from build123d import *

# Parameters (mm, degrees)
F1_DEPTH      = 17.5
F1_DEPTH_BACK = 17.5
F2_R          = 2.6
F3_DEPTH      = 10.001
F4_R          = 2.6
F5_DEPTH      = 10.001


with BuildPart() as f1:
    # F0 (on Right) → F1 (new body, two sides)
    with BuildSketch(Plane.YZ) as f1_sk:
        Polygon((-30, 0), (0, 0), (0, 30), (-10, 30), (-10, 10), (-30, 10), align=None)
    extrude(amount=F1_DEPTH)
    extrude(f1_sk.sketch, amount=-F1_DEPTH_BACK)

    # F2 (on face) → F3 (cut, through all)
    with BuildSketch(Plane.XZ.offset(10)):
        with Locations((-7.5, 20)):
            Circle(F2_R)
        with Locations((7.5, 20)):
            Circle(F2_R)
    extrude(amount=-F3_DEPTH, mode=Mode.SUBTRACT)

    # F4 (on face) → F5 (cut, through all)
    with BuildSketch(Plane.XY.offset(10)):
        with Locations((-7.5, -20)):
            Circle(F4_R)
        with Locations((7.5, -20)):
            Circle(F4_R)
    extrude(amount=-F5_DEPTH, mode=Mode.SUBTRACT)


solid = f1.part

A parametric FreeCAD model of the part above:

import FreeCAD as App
import Part
import Sketcher

V = App.Vector
Q = App.Units.Quantity

doc = App.newDocument("Part")
body = doc.addObject("PartDesign::Body", "Body")

sketch1 = doc.addObject("Sketcher::SketchObject", "Sketch")
body.addObject(sketch1)
sketch1.AttachmentSupport = (doc.YZ_Plane, [""])
sketch1.MapMode = "FlatFace"
sketch1.addGeometry(Part.LineSegment(V(-30, 0, 0), V(0, 0, 0)), False)
sketch1.addGeometry(Part.LineSegment(V(0, 0, 0), V(0, 30, 0)), False)
sketch1.addGeometry(Part.LineSegment(V(0, 30, 0), V(-10, 30, 0)), False)
sketch1.addGeometry(Part.LineSegment(V(-10, 30, 0), V(-10, 10, 0)), False)
sketch1.addGeometry(Part.LineSegment(V(-10, 10, 0), V(-30, 10, 0)), False)
sketch1.addGeometry(Part.LineSegment(V(-30, 10, 0), V(-30, 0, 0)), False)
sketch1.addConstraint(Sketcher.Constraint("Coincident", 0, 2, 1, 1))
sketch1.addConstraint(Sketcher.Constraint("Coincident", 1, 2, 2, 1))
sketch1.addConstraint(Sketcher.Constraint("Coincident", 2, 2, 3, 1))
sketch1.addConstraint(Sketcher.Constraint("Coincident", 3, 2, 4, 1))
sketch1.addConstraint(Sketcher.Constraint("Coincident", 4, 2, 5, 1))
sketch1.addConstraint(Sketcher.Constraint("Coincident", 5, 2, 0, 1))
sketch1.addConstraint(Sketcher.Constraint("Horizontal", 0))
sketch1.addConstraint(Sketcher.Constraint("Vertical", 1))
sketch1.addConstraint(Sketcher.Constraint("Horizontal", 2))
sketch1.addConstraint(Sketcher.Constraint("Vertical", 3))
sketch1.addConstraint(Sketcher.Constraint("Horizontal", 4))
sketch1.addConstraint(Sketcher.Constraint("Vertical", 5))
sketch1.addConstraint(Sketcher.Constraint("Coincident", 0, 2, -1, 1))
sketch1.addConstraint(Sketcher.Constraint("Equal", 0, 1))
sketch1.addConstraint(Sketcher.Constraint("Equal", 4, 3))
sketch1.addConstraint(Sketcher.Constraint("DistanceX", 0, 1, 0, 2, Q("30 mm")))
sketch1.addConstraint(Sketcher.Constraint("DistanceX", 2, 2, 2, 1, Q("10 mm")))
pad1 = doc.addObject("PartDesign::Pad", "Pad")
body.addObject(pad1)
pad1.Profile = sketch1
pad1.Type = "TwoLengths"
pad1.Length = 17.5
pad1.Length2 = 17.5

sketch2 = doc.addObject("Sketcher::SketchObject", "Sketch001")
body.addObject(sketch2)
sketch2.AttachmentSupport = (doc.XZ_Plane, [""])
sketch2.MapMode = "FlatFace"
sketch2.AttachmentOffset = App.Placement(V(0, 0, 10), App.Rotation())
sketch2.addGeometry(Part.Circle(V(-7.5, 20, 0), V(0, 0, 1), 2.6), False)
sketch2.addGeometry(Part.Circle(V(7.5, 20, 0), V(0, 0, 1), 2.6), False)
sketch2.addConstraint(Sketcher.Constraint("Equal", 0, 1))
sketch2.addConstraint(Sketcher.Constraint("Symmetric", 0, 3, 1, 3, -2))
sketch2.addConstraint(Sketcher.Constraint("Diameter", 0, Q("5.2 mm")))
sketch2.addConstraint(Sketcher.Constraint("DistanceY", -1, 1, 0, 3, Q("20 mm")))
sketch2.addConstraint(Sketcher.Constraint("DistanceX", 0, 3, 1, 3, Q("15 mm")))
pocket1 = doc.addObject("PartDesign::Pocket", "Pocket")
body.addObject(pocket1)
pocket1.Profile = sketch2
pocket1.Type = "ThroughAll"

sketch3 = doc.addObject("Sketcher::SketchObject", "Sketch002")
body.addObject(sketch3)
sketch3.AttachmentSupport = (doc.XY_Plane, [""])
sketch3.MapMode = "FlatFace"
sketch3.AttachmentOffset = App.Placement(V(0, 0, 10), App.Rotation())
sketch3.addGeometry(Part.Circle(V(-7.5, -20, 0), V(0, 0, 1), 2.6), False)
sketch3.addGeometry(Part.Circle(V(7.5, -20, 0), V(0, 0, 1), 2.6), False)
sketch3.addConstraint(Sketcher.Constraint("Equal", 0, 1))
sketch3.addConstraint(Sketcher.Constraint("Symmetric", 0, 3, 1, 3, -2))
sketch3.addConstraint(Sketcher.Constraint("Diameter", 0, Q("5.2 mm")))
sketch3.addConstraint(Sketcher.Constraint("DistanceY", 0, 3, -1, 1, Q("20 mm")))
sketch3.addConstraint(Sketcher.Constraint("DistanceX", 0, 3, 1, 3, Q("15 mm")))
pocket2 = doc.addObject("PartDesign::Pocket", "Pocket001")
body.addObject(pocket2)
pocket2.Profile = sketch3
pocket2.Type = "ThroughAll"

doc.recompute()
